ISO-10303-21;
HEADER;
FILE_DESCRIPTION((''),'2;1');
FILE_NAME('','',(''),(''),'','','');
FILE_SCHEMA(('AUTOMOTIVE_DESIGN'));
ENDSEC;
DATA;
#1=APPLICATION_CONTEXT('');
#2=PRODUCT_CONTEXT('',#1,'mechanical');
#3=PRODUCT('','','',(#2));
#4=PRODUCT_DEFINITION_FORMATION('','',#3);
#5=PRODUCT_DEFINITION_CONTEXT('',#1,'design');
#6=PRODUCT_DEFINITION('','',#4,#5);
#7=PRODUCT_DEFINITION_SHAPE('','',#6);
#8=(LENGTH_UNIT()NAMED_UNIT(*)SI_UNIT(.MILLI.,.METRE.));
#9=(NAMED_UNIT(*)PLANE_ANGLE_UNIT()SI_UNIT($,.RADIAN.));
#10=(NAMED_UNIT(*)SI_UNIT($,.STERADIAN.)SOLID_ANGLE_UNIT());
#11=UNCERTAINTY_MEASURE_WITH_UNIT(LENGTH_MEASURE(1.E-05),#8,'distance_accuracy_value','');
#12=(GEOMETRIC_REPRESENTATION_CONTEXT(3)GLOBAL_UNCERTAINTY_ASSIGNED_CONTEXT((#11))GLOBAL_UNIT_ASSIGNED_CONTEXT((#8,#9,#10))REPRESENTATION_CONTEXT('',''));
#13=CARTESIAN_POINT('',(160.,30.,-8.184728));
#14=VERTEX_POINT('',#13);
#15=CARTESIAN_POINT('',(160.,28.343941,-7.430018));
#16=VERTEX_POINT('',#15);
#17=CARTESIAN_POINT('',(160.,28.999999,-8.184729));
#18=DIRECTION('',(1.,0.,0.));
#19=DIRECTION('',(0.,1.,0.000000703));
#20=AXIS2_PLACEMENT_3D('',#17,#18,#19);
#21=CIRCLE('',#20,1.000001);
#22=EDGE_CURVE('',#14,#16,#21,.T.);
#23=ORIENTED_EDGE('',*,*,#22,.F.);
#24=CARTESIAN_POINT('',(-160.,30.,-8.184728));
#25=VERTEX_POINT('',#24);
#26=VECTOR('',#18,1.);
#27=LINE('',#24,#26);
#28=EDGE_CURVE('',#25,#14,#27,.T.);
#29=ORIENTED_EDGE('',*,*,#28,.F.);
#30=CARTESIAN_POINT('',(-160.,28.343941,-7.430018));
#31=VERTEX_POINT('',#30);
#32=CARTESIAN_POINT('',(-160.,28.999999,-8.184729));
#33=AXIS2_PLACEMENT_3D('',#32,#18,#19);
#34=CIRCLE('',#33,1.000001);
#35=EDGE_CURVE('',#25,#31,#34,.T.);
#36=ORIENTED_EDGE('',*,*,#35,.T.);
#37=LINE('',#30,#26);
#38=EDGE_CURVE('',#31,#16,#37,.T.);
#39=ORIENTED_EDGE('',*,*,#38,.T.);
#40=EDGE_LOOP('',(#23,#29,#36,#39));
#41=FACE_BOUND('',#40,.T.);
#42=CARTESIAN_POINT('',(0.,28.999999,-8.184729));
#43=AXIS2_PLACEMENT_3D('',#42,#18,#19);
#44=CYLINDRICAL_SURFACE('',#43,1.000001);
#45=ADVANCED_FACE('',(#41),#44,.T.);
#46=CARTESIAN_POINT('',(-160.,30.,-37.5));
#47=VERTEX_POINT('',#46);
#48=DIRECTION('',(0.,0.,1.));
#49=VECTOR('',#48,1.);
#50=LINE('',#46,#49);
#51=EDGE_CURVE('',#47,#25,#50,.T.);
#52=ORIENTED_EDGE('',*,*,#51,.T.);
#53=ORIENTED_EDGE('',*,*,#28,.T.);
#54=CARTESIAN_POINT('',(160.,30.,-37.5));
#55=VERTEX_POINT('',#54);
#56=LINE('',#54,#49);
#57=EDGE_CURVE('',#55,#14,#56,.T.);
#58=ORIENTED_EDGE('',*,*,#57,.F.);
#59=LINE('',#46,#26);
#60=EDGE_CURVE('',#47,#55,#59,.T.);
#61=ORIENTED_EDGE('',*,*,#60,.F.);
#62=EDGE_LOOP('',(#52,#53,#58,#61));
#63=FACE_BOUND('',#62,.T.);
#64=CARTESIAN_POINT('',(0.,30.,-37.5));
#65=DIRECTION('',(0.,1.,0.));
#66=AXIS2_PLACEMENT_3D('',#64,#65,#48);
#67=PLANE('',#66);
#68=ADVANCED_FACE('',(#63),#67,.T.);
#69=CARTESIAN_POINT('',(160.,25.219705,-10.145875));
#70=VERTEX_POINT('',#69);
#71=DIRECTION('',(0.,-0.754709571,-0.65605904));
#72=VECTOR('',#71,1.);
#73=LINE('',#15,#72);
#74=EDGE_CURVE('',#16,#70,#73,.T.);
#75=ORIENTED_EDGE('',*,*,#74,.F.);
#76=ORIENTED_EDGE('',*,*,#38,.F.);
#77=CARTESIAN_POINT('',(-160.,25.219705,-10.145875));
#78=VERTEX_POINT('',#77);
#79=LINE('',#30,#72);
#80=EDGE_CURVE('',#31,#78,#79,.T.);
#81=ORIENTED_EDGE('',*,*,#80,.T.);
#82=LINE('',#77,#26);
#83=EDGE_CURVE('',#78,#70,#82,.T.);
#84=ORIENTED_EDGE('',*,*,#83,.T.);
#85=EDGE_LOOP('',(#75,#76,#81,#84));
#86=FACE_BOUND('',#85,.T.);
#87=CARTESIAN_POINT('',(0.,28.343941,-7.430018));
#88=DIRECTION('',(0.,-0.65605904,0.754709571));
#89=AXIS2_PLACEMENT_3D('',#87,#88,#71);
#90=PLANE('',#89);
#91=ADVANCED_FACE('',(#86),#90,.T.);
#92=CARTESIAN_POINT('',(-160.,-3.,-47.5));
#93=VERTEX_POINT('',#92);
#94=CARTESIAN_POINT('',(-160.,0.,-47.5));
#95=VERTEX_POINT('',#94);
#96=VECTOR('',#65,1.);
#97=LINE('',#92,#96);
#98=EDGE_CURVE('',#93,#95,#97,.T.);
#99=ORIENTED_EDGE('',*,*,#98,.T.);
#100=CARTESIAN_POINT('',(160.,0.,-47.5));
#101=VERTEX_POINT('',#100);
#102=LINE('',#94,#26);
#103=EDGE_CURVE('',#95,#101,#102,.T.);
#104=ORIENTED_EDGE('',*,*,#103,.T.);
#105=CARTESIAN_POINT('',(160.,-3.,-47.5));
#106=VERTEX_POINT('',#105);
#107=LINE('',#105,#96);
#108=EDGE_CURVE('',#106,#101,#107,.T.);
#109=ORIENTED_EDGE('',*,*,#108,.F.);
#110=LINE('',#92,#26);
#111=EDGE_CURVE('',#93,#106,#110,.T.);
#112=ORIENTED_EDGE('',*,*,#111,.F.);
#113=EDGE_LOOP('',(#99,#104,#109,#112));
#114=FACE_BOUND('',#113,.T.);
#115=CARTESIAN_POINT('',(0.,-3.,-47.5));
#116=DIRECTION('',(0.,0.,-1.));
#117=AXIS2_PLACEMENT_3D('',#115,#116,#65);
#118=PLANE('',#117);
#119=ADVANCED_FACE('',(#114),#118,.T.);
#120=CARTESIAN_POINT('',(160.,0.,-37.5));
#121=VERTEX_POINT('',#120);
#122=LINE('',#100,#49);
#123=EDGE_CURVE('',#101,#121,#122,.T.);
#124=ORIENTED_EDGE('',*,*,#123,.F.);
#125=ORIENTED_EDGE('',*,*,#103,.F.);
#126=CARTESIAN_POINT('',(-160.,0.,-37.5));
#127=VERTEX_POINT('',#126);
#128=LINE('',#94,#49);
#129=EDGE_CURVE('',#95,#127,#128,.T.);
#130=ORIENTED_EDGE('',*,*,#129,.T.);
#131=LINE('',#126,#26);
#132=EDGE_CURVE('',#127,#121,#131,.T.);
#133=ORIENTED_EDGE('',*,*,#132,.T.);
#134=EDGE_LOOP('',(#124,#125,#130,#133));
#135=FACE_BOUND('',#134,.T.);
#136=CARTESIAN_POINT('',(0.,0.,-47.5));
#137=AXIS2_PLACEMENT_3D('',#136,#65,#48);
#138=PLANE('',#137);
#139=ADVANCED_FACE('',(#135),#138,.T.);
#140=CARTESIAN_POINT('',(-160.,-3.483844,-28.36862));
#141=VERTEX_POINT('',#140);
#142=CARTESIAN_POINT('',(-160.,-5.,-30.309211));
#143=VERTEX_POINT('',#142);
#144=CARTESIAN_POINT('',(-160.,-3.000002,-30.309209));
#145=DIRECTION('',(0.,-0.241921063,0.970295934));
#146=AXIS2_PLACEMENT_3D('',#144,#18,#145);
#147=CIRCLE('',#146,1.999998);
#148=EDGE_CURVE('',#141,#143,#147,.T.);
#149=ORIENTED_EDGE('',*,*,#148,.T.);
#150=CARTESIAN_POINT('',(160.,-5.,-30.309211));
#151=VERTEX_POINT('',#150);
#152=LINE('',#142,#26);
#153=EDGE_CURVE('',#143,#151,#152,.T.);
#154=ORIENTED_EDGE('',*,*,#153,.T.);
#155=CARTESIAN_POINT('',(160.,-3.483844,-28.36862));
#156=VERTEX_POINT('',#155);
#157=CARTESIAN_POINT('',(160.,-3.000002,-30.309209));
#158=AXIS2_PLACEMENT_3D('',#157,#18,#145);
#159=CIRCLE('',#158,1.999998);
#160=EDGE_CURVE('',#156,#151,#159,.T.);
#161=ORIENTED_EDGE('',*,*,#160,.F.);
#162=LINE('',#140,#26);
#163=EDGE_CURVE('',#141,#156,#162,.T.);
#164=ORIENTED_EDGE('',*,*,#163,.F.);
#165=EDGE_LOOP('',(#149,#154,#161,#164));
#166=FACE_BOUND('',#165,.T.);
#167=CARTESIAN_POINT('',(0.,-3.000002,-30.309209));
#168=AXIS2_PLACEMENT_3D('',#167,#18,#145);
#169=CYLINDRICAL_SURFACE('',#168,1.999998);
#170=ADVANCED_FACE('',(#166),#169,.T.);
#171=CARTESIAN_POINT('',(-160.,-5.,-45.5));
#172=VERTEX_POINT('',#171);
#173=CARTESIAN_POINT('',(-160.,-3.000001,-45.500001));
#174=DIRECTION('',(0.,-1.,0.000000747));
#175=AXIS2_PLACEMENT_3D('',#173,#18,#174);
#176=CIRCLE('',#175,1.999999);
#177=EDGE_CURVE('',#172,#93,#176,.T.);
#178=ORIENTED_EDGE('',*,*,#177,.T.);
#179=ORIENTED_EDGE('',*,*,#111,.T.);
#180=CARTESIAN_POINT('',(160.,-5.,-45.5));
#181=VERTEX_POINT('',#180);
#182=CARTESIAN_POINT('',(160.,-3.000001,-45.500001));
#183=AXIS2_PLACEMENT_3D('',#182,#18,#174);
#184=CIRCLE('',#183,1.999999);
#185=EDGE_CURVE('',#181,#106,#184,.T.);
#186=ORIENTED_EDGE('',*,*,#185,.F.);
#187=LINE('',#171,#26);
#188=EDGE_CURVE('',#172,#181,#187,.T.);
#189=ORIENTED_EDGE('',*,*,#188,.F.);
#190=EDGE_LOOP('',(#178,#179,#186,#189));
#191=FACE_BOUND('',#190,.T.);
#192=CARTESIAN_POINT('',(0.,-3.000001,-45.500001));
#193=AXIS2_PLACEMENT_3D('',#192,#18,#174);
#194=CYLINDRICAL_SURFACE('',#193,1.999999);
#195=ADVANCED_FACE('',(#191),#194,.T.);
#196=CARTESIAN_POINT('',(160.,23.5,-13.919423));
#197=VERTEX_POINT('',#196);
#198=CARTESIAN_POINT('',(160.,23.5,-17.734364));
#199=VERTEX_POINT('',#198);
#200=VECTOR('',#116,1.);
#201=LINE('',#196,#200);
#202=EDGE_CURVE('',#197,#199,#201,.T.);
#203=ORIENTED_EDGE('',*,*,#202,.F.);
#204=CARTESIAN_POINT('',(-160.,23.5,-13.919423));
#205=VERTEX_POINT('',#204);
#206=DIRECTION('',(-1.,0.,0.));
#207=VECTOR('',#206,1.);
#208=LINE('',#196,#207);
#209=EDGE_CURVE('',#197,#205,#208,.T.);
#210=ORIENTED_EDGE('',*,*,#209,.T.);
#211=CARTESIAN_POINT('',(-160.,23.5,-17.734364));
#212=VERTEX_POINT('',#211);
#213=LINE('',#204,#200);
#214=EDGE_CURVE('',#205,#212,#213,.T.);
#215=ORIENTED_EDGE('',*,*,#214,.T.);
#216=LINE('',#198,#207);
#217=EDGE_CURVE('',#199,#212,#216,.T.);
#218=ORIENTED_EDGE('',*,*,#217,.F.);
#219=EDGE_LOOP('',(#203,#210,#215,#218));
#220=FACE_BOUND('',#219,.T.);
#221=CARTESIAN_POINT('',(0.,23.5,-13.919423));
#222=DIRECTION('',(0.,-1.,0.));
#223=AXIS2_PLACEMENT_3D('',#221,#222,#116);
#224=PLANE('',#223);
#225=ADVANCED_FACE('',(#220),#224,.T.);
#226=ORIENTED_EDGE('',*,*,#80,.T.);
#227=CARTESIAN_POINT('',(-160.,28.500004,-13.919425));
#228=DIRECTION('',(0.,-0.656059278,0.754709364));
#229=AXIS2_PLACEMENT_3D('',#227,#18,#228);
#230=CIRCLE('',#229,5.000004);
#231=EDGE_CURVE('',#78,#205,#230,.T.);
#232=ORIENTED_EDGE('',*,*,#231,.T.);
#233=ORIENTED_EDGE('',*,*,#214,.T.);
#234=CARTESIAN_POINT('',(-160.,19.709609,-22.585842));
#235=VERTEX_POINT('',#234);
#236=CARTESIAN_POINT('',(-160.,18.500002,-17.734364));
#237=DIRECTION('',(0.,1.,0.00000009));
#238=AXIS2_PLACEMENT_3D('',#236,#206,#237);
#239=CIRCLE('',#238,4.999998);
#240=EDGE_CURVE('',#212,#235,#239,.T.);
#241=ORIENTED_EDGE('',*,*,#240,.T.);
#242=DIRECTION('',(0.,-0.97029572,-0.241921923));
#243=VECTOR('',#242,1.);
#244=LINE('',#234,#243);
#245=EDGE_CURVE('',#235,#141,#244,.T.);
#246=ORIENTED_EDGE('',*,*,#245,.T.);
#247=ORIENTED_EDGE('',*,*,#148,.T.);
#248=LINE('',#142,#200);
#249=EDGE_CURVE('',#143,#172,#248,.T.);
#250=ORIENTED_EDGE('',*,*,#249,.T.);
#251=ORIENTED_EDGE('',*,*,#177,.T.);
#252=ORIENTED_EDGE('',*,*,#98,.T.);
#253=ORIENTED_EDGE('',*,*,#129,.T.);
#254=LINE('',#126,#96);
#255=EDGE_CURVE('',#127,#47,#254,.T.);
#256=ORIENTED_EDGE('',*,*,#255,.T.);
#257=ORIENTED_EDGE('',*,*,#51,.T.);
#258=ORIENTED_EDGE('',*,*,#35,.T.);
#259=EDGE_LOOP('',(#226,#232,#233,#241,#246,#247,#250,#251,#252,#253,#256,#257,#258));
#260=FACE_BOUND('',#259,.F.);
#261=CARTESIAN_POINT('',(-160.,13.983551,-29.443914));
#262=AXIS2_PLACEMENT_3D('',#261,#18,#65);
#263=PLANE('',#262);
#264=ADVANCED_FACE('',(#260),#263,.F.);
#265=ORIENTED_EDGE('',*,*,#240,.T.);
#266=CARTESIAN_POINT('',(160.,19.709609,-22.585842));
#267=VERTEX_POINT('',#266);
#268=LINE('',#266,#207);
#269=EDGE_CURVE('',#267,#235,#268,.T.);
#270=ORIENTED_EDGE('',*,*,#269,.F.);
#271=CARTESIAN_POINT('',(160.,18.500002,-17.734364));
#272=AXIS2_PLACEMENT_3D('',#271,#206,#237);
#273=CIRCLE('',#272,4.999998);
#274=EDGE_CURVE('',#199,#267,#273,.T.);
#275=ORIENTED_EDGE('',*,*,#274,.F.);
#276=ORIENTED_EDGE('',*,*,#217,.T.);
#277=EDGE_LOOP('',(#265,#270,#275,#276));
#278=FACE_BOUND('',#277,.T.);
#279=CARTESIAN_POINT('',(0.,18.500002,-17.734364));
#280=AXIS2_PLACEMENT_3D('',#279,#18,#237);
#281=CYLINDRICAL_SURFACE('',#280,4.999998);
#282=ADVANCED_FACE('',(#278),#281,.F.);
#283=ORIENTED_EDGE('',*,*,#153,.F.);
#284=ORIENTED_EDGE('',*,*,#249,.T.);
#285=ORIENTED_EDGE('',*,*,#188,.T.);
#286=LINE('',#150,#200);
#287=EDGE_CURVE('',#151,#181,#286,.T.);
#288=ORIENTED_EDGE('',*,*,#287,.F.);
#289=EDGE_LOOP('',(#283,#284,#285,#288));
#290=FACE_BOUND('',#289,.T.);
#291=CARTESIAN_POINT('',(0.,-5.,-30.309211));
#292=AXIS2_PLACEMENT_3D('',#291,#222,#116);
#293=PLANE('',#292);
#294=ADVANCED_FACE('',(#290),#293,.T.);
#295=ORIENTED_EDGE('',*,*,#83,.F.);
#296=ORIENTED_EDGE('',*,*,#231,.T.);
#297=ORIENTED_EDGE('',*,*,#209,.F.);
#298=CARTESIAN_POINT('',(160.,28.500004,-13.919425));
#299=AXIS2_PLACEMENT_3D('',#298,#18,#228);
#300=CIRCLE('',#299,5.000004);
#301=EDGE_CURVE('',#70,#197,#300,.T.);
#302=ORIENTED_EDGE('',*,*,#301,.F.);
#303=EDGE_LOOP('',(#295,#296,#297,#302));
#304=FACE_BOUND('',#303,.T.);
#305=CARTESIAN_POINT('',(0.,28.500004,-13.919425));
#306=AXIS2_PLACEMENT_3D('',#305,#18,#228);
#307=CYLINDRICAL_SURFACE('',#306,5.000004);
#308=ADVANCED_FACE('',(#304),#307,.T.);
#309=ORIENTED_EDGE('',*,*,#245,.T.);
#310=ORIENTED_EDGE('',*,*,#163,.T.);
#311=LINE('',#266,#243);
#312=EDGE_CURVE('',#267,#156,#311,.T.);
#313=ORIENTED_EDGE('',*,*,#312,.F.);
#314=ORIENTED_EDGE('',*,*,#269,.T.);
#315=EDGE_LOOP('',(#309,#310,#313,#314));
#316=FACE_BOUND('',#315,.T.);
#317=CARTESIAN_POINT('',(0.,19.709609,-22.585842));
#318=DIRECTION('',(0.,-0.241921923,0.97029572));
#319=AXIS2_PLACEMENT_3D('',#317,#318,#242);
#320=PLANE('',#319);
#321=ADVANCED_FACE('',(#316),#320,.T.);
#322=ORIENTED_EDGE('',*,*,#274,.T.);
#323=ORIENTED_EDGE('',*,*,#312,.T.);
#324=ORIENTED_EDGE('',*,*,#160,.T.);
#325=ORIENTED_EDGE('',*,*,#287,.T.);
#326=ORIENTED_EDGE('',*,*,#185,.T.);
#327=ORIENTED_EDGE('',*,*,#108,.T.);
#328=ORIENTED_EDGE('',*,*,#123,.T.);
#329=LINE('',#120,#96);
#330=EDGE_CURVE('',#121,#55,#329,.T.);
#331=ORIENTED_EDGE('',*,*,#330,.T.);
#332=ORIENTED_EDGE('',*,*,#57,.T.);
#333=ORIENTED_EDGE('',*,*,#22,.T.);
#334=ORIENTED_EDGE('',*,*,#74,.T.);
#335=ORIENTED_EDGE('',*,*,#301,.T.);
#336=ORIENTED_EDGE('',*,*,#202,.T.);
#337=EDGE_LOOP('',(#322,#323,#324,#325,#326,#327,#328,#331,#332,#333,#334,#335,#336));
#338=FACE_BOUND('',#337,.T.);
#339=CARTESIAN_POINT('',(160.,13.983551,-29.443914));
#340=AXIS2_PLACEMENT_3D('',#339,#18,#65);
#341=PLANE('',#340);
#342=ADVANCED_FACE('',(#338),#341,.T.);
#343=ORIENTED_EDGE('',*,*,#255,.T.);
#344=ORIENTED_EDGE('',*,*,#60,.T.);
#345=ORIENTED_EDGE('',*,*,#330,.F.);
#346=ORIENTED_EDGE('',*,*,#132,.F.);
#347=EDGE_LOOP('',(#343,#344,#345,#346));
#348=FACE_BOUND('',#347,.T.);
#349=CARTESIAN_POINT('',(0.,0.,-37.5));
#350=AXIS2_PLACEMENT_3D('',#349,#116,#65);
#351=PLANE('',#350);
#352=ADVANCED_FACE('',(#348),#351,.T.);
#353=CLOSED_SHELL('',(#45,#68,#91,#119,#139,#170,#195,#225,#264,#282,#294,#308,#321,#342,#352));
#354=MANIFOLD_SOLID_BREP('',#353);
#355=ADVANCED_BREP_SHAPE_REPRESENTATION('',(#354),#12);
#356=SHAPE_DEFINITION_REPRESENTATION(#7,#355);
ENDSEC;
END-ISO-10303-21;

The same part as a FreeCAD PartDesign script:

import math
import FreeCAD as App
import Part
import Sketcher
Q = App.Units.Quantity

doc = App.newDocument("Part")
body = doc.addObject("PartDesign::Body", "Body")

sketch1 = body.newObject("Sketcher::SketchObject", "Sketch")
sketch1.AttachmentSupport = (doc.getObject("YZ_Plane"), [""])
sketch1.MapMode = "FlatFace"
sketch1.addGeometry([
    Part.LineSegment(App.Vector(19.7, -22.6, 0), App.Vector(-3.5, -28.4, 0)),
    Part.ArcOfCircle(Part.Circle(App.Vector(-3, -30.3, 0), App.Vector(0, 0, 1), 2), math.radians(104), math.radians(180)),
    Part.LineSegment(App.Vector(-5, -30.3, 0), App.Vector(-5, -45.5, 0)),
    Part.ArcOfCircle(Part.Circle(App.Vector(-3, -45.5, 0), App.Vector(0, 0, 1), 2), math.radians(180), math.radians(270)),
    Part.LineSegment(App.Vector(-3, -47.5, 0), App.Vector(0, -47.5, 0)),
    Part.LineSegment(App.Vector(0, -47.5, 0), App.Vector(0, -37.5, 0)),
    Part.LineSegment(App.Vector(0, -37.5, 0), App.Vector(30, -37.5, 0)),
    Part.LineSegment(App.Vector(30, -37.5, 0), App.Vector(30, -8.2, 0)),
    Part.ArcOfCircle(Part.Circle(App.Vector(29, -8.2, 0), App.Vector(0, 0, 1), 1), math.radians(0), math.radians(131)),
    Part.LineSegment(App.Vector(28.3, -7.4, 0), App.Vector(25.2, -10.1, 0)),
    Part.ArcOfCircle(Part.Circle(App.Vector(28.5, -13.9, 0), App.Vector(0, 0, 1), 5), math.radians(131), math.radians(180)),
    Part.LineSegment(App.Vector(23.5, -13.9, 0), App.Vector(23.5, -17.7, 0)),
    Part.ArcOfCircle(Part.Circle(App.Vector(18.5, -17.7, 0), App.Vector(0, 0, 1), 5), math.radians(-76), math.radians(0)),
], False)
sketch1.addConstraint([
    Sketcher.Constraint("Tangent", 0, 2, 1, 1),
    Sketcher.Constraint("Tangent", 1, 2, 2, 1),
    Sketcher.Constraint("Tangent", 2, 2, 3, 1),
    Sketcher.Constraint("Tangent", 3, 2, 4, 1),
    Sketcher.Constraint("Coincident", 4, 2, 5, 1),
    Sketcher.Constraint("Coincident", 5, 2, 6, 1),
    Sketcher.Constraint("Coincident", 6, 2, 7, 1),
    Sketcher.Constraint("Tangent", 7, 2, 8, 1),
    Sketcher.Constraint("Tangent", 8, 2, 9, 1),
    Sketcher.Constraint("Tangent", 9, 2, 10, 1),
    Sketcher.Constraint("Tangent", 10, 2, 11, 1),
    Sketcher.Constraint("Tangent", 11, 2, 12, 2),
    Sketcher.Constraint("Tangent", 12, 1, 0, 1),
    Sketcher.Constraint("Vertical", 2),
    Sketcher.Constraint("Horizontal", 4),
    Sketcher.Constraint("Vertical", 5),
    Sketcher.Constraint("Horizontal", 6),
    Sketcher.Constraint("Vertical", 7),
    Sketcher.Constraint("Vertical", 11),
    Sketcher.Constraint("Equal", 1, 3),
    Sketcher.Constraint("PointOnObject", 4, 2, -2),
    Sketcher.Constraint("Radius", 3, 1.999999),
    Sketcher.Constraint("Radius", 8, 1.000001),
    Sketcher.Constraint("Radius", 12, 4.999998),
    Sketcher.Constraint("DistanceX", 4, 1, 4, 2, 3.0),
    Sketcher.Constraint("DistanceX", 6, 1, 6, 2, 30.0),
    Sketcher.Constraint("DistanceY", 5, 1, 5, 2, 10.0),
    Sketcher.Constraint("Angle", 0, Q("-165.999998 deg")),
    Sketcher.Constraint("Angle", 9, Q("-138.999999 deg")),
    Sketcher.Constraint("DistanceY", 3, 3, -1, 1, 45.500001),
    Sketcher.Constraint("DistanceX", -1, 1, 12, 3, 18.500002),
    Sketcher.Constraint("Radius", 10, 5.000004),
    Sketcher.Constraint("DistanceY", 2, 2, 2, 1, 15.190789),
    Sketcher.Constraint("DistanceY", 7, 1, 7, 2, 29.315272),
])
pad1 = body.newObject("PartDesign::Pad", "Pad")
pad1.Profile = sketch1
pad1.Length = 320
pad1.Midplane = True

doc.recompute()
